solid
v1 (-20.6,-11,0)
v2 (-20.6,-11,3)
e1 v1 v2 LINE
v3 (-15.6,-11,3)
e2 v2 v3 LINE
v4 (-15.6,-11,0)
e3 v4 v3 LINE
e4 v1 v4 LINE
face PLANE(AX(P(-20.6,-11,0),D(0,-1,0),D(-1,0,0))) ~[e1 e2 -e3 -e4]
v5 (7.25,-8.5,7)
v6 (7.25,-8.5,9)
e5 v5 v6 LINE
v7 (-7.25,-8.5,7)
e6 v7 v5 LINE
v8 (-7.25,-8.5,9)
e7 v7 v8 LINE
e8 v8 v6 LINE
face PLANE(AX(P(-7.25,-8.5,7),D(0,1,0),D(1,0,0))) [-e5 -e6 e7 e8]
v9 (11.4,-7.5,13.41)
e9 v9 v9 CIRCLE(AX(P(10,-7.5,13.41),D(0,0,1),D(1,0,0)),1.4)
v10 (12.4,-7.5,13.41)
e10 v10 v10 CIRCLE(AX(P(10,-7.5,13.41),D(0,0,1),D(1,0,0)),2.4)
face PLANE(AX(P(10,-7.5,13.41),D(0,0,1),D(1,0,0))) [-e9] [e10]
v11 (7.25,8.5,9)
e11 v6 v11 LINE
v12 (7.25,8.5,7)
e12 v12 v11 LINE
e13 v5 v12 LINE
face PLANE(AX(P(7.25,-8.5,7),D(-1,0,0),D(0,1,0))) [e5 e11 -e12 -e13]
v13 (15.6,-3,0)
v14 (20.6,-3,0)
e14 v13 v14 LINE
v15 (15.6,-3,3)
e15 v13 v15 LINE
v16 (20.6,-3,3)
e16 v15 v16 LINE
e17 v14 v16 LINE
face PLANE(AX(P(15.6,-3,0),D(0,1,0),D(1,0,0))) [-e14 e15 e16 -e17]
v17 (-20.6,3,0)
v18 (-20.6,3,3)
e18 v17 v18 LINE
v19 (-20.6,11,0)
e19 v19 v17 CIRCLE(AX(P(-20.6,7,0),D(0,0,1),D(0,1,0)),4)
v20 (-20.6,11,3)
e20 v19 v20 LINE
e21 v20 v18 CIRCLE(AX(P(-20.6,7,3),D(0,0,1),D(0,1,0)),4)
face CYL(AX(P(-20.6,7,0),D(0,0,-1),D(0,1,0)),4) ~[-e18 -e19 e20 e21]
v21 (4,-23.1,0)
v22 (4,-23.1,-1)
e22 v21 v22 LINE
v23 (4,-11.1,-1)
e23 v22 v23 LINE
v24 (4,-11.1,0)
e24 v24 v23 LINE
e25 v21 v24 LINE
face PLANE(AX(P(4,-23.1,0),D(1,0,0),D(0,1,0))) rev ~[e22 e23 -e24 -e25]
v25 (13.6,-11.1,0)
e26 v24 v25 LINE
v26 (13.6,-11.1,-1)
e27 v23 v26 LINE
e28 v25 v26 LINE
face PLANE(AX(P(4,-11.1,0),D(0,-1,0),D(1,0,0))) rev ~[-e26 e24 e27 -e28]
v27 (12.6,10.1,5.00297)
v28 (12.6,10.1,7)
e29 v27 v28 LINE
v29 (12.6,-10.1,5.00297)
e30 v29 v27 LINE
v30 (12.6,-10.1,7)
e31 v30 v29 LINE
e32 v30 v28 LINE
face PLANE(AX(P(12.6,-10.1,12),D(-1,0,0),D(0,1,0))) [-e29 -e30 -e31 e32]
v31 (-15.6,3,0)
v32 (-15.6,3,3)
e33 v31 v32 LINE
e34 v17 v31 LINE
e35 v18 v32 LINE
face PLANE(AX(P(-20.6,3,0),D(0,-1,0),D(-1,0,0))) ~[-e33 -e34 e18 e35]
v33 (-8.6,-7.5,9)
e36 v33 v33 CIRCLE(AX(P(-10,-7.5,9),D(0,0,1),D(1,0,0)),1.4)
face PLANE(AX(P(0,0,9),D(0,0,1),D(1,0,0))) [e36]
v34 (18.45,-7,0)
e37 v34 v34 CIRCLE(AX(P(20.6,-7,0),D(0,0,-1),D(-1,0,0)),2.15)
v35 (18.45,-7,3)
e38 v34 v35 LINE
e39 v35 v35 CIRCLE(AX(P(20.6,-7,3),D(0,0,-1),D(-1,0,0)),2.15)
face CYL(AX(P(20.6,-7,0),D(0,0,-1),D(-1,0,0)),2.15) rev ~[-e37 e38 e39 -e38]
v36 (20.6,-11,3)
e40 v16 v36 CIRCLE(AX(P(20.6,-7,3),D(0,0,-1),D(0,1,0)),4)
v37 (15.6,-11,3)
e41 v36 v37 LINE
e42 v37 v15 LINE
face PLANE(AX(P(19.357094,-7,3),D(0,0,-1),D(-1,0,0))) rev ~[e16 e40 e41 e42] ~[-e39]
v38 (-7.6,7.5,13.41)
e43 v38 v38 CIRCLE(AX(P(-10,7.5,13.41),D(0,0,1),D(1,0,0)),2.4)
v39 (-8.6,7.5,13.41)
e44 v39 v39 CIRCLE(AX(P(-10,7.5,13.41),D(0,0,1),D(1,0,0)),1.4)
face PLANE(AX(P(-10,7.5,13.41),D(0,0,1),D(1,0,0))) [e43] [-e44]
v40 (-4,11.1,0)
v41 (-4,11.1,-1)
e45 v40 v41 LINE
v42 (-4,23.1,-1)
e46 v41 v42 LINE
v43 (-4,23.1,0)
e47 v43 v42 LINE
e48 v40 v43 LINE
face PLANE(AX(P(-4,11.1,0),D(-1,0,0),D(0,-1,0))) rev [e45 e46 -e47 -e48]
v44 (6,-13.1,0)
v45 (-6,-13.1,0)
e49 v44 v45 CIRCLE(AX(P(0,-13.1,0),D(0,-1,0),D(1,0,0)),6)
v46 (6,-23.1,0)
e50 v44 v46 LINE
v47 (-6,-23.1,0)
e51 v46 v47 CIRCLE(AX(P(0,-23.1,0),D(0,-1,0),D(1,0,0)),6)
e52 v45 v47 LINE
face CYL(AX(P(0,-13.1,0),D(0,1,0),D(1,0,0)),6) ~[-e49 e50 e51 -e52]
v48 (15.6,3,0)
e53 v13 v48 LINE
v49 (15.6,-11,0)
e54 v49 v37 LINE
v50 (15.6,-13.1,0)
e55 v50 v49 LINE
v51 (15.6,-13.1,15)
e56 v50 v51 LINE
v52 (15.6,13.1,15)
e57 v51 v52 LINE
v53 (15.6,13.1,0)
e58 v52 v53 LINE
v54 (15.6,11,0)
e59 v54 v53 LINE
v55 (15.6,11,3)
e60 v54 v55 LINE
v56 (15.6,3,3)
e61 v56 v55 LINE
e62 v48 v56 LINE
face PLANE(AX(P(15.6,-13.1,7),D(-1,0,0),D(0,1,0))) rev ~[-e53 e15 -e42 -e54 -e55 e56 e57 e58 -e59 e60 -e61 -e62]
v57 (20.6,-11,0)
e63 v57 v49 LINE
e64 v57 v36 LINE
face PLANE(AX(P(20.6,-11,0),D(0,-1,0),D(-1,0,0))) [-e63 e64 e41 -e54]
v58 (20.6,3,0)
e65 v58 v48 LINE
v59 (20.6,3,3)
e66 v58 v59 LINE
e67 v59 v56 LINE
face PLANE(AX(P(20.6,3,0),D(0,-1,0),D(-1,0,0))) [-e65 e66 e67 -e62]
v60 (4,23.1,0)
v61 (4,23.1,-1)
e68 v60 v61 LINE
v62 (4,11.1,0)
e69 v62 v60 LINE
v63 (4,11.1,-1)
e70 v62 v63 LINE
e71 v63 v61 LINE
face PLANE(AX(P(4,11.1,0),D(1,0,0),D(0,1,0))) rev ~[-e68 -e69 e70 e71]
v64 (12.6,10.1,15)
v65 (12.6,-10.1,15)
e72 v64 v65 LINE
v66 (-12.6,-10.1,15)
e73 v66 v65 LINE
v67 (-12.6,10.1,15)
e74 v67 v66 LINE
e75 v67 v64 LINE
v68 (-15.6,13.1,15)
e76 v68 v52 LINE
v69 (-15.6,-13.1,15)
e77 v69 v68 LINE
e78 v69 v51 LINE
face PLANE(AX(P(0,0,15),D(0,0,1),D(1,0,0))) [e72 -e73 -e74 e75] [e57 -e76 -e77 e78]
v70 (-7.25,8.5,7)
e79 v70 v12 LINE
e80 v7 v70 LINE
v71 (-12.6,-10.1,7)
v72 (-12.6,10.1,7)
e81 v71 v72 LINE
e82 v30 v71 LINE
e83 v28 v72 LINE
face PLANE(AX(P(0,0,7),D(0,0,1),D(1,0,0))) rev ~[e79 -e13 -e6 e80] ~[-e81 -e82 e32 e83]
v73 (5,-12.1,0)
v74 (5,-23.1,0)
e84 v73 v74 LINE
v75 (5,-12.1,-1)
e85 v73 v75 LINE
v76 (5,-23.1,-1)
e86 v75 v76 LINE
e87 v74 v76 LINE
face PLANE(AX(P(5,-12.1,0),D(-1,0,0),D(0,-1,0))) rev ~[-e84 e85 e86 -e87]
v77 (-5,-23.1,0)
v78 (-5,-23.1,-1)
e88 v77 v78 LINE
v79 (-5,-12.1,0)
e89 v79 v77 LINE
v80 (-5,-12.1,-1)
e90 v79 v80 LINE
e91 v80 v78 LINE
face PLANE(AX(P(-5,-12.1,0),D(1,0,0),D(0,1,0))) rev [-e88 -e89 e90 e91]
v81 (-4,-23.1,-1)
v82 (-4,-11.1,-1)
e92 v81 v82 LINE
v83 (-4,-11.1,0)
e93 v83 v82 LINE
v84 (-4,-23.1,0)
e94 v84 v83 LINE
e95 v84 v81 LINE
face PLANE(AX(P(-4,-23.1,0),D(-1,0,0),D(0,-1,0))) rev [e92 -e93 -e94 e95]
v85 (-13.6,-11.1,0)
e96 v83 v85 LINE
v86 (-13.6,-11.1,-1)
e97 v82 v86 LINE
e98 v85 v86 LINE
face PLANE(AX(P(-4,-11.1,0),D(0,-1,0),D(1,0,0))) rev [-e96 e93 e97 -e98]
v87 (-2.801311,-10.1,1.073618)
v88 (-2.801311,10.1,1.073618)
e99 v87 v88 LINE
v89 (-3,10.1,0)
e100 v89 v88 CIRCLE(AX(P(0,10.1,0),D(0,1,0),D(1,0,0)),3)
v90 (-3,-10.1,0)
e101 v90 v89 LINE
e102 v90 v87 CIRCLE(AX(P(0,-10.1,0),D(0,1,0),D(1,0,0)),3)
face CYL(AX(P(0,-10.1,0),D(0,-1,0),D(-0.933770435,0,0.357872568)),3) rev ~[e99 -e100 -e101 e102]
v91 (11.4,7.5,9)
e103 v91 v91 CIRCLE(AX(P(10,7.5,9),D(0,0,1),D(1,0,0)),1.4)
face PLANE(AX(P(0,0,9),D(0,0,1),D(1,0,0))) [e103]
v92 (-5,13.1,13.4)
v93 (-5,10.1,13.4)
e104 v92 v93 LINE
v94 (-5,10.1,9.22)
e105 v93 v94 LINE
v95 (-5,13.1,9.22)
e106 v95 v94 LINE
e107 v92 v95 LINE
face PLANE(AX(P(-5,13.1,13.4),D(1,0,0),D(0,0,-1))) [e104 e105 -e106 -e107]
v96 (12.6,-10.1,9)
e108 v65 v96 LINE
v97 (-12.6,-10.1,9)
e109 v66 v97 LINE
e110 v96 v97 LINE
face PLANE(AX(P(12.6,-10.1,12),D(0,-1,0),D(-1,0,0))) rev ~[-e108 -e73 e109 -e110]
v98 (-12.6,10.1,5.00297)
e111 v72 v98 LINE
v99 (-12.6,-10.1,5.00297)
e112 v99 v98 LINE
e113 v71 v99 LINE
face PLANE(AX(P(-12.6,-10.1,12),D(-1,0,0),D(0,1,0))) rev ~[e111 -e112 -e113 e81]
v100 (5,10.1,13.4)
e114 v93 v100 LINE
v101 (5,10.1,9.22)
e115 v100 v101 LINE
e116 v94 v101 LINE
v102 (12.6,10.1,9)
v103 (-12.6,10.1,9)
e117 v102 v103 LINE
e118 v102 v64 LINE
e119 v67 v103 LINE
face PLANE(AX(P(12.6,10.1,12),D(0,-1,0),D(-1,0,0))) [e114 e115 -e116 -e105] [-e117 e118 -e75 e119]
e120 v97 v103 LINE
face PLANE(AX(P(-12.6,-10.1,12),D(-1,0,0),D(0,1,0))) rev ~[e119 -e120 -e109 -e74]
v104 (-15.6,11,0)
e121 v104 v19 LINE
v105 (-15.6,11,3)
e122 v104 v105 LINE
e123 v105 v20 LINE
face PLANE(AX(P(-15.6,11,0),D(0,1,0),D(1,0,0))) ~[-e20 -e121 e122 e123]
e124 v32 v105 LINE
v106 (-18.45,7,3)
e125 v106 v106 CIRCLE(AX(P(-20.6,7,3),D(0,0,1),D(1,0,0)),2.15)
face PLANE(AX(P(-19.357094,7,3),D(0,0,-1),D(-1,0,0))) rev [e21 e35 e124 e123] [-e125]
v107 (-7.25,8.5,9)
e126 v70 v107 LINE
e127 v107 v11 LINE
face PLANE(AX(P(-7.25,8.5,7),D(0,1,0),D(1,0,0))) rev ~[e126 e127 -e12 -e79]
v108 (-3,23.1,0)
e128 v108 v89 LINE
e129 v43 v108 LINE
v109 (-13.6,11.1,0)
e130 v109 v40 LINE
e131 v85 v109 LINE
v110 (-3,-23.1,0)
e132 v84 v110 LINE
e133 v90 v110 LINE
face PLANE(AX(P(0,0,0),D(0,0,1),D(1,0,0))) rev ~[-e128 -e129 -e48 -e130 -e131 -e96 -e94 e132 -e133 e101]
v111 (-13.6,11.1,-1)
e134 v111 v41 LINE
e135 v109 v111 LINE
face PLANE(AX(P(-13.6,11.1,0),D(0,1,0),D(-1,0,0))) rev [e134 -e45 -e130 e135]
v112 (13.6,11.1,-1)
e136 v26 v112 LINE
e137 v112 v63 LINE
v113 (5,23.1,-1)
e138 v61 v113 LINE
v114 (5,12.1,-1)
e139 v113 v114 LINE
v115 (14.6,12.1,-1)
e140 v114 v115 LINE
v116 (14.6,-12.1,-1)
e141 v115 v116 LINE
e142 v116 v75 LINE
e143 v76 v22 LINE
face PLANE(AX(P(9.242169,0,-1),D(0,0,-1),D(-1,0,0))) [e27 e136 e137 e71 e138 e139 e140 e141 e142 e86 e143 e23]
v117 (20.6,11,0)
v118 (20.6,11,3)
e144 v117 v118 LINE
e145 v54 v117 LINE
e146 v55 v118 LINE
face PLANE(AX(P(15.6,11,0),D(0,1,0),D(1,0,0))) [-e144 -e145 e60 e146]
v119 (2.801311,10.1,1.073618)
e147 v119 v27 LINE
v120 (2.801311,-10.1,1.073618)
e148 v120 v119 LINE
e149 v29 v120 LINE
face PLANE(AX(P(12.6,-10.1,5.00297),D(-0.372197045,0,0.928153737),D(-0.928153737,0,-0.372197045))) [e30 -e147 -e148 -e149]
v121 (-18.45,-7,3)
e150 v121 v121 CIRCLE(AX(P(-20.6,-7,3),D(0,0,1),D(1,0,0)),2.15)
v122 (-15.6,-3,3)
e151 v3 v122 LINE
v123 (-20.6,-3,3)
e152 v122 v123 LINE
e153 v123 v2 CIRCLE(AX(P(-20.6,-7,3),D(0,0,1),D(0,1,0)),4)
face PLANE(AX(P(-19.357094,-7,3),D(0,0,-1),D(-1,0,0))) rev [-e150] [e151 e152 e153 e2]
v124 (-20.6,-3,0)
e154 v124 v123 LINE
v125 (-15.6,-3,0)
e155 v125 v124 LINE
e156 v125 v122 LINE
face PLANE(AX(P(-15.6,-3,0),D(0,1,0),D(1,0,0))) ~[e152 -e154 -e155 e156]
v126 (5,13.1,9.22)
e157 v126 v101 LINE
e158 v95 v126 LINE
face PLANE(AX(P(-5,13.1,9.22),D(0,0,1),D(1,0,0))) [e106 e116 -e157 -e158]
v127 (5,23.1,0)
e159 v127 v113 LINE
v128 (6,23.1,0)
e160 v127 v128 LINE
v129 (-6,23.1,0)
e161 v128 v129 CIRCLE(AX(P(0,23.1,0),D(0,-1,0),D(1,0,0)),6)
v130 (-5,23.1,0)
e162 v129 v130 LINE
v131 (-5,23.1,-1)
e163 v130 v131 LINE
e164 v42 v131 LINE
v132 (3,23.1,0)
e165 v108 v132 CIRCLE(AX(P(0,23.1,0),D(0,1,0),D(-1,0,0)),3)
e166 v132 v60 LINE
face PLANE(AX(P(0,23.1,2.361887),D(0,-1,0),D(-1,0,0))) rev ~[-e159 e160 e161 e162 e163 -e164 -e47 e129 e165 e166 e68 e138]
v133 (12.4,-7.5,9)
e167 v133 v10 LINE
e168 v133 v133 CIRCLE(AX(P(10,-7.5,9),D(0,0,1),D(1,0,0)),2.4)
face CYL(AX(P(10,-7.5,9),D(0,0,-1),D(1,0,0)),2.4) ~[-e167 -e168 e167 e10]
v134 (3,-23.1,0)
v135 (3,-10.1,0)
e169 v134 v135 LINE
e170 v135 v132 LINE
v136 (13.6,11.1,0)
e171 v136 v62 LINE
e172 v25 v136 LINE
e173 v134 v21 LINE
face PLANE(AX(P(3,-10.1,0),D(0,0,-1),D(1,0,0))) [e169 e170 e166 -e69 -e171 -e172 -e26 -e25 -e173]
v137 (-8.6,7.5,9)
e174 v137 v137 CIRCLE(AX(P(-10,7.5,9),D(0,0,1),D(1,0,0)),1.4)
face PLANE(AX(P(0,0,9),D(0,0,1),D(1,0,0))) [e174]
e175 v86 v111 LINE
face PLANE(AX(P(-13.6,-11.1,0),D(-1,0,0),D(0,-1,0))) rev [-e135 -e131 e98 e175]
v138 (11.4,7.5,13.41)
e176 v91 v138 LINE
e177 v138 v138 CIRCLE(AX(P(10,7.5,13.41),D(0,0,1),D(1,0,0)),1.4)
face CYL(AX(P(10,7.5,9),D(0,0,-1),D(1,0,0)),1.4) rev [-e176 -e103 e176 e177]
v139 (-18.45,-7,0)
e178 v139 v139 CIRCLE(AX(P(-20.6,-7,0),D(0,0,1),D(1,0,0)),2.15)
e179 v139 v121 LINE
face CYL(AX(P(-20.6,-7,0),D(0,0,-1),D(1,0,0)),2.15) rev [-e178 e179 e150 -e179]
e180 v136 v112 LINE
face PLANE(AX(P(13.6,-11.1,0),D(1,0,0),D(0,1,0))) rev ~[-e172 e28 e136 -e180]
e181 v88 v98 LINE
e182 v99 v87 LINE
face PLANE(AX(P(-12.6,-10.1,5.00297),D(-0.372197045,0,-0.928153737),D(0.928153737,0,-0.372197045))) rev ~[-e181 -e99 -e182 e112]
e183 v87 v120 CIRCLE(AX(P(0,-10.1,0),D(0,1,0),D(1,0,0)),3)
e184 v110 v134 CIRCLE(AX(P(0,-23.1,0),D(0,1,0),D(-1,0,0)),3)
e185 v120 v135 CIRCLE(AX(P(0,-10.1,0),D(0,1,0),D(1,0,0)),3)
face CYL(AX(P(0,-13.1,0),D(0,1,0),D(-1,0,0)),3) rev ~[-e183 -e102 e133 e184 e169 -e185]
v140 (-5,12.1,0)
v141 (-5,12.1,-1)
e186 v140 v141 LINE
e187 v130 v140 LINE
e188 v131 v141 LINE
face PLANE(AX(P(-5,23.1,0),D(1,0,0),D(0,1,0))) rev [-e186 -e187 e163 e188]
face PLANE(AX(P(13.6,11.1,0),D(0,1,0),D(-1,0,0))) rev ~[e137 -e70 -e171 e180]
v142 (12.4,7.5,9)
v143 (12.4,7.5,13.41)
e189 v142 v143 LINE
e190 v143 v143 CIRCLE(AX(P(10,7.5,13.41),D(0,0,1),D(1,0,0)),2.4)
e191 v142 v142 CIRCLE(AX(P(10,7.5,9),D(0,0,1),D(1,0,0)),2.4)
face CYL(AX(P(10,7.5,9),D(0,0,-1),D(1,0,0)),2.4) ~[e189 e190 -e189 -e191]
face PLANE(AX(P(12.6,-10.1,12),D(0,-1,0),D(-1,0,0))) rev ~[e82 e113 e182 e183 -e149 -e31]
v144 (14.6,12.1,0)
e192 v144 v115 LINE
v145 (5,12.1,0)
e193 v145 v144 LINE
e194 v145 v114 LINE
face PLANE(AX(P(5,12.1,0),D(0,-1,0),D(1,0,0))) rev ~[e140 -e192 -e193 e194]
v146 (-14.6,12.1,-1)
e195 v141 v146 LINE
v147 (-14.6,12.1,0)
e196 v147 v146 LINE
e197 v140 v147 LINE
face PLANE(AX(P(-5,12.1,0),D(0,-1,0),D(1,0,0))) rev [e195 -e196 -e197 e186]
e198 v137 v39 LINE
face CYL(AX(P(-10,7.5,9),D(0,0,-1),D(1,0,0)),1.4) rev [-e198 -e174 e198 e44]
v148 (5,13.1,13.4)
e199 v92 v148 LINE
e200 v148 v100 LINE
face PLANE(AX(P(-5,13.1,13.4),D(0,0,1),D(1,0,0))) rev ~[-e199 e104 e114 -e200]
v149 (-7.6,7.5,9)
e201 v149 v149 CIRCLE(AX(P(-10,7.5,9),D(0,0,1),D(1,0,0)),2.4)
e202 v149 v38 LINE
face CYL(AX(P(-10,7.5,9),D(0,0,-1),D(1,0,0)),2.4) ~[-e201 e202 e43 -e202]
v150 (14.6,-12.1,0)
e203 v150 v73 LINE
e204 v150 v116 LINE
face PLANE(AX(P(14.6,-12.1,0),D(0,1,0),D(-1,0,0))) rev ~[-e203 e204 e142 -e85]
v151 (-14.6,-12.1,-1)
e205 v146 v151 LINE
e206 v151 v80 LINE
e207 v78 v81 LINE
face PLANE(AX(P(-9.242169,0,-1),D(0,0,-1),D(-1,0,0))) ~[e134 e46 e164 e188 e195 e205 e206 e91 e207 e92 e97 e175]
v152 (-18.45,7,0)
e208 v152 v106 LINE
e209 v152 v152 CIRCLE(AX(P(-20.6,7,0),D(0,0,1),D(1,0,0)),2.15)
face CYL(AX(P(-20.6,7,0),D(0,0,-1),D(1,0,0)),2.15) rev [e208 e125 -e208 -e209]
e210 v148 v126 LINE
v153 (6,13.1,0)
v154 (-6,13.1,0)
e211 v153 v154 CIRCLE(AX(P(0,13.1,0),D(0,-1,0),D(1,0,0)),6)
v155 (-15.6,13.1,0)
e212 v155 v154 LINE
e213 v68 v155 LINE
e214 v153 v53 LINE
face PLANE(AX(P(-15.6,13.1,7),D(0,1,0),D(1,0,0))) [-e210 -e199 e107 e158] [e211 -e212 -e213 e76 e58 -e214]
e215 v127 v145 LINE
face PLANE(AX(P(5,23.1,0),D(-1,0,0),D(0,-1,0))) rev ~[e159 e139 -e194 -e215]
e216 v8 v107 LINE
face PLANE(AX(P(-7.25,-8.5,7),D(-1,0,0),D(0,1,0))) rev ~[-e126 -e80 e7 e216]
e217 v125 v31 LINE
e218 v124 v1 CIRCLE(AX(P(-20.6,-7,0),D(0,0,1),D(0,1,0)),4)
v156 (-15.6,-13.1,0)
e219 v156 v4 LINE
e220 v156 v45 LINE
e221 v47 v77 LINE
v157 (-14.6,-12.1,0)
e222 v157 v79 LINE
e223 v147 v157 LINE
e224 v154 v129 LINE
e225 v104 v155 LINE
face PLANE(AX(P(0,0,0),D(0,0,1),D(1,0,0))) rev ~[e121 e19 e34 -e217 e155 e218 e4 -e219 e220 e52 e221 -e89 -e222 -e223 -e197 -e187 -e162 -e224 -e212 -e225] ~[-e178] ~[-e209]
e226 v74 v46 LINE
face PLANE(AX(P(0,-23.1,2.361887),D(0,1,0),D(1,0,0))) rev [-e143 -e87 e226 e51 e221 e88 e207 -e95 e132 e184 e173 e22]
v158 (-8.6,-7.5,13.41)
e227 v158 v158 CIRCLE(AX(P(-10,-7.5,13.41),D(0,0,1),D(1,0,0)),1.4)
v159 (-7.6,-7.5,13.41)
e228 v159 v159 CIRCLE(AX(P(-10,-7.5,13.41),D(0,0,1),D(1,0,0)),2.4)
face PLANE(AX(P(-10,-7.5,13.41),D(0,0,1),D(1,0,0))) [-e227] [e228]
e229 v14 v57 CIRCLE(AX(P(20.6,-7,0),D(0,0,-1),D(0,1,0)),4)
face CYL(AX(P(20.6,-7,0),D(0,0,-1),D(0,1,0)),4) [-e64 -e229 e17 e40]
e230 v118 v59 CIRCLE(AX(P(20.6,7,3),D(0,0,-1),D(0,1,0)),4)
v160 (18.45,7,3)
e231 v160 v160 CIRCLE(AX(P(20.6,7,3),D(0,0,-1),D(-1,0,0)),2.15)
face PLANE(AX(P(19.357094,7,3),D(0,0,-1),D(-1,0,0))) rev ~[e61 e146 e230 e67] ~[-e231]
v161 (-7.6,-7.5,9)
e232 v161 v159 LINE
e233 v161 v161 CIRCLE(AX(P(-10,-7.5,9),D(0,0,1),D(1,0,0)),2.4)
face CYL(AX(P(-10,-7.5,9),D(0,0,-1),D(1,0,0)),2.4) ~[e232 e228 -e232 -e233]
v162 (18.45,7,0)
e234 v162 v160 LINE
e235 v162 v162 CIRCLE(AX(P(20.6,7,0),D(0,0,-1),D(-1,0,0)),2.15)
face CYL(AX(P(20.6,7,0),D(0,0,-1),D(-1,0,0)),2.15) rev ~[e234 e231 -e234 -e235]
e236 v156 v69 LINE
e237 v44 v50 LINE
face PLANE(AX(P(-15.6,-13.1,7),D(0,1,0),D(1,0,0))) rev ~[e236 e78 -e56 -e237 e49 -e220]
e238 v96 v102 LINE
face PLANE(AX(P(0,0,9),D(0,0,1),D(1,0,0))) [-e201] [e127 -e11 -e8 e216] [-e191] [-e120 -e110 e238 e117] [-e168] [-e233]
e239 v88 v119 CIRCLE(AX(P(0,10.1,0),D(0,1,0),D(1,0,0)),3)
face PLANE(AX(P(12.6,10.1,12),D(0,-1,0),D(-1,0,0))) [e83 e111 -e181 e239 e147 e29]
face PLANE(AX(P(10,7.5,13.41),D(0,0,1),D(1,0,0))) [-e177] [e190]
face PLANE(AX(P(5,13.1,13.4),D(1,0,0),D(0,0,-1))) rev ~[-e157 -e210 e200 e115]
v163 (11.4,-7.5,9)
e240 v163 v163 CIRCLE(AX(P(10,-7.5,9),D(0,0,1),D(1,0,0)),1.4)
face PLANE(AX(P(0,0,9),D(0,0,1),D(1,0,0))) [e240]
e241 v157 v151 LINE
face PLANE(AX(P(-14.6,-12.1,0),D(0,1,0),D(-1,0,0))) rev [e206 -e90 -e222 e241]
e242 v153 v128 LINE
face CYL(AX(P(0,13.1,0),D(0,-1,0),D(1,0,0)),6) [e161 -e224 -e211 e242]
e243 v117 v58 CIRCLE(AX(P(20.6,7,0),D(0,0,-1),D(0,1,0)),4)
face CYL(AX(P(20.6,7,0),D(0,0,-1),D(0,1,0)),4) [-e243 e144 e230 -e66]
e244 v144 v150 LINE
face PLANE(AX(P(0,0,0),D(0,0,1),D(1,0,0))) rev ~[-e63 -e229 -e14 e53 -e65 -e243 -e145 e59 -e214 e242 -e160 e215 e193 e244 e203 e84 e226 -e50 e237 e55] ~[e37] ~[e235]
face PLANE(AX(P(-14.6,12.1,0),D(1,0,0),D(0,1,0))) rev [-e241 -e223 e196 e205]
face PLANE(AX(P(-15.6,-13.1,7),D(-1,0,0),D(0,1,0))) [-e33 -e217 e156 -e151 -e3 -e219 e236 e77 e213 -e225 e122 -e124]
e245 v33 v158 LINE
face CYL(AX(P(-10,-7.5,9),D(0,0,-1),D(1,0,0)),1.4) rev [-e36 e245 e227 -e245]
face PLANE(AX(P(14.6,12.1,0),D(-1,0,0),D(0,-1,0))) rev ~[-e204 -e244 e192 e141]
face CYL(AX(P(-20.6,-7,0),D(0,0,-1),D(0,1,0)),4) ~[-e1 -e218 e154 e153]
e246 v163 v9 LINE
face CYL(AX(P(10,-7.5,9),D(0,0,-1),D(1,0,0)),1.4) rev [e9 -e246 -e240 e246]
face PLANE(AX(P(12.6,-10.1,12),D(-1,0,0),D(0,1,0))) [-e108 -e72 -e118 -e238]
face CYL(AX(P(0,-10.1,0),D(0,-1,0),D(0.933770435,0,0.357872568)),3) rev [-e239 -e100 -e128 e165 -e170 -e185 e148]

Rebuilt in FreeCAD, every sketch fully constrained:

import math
import FreeCAD as App
import Part
import Sketcher


def faces_at(feature, points):
    """Names of the faces that lie closest to the given points."""
    faces = feature.Shape.Faces
    near = lambda p: min(range(len(faces)), key=lambda i: faces[i].distToShape(Part.Vertex(*p))[0])
    return sorted({f"Face{near(p) + 1}" for p in points})

doc = App.newDocument("Part")
params = doc.addObject("Spreadsheet::Sheet", "Params")
for row, (alias, value) in enumerate([
    ("sketch1_width", "31.2 mm"),
    ("sketch1_height", "26.2 mm"),
    ("pad1_length", "15 mm"),
    ("thickness_wall", "3 mm"),
    ("sketch2_radius", "6 mm"),
    ("sketch2_radius2", "3 mm"),
    ("pad2_length", "10 mm"),
    ("sketch3_radius", "3 mm"),
    ("sketch4_radius", "4 mm"),
    ("sketch4_diameter", "4.3 mm"),
    ("sketch4_width", "5 mm"),
    ("pad3_length", "3 mm"),
    ("sketch5_width", "1 mm"),
    ("sketch5_height", "12 mm"),
    ("sketch5_height2", "11 mm"),
    ("sketch5_width2", "9.6 mm"),
    ("sketch5_height3", "22.2 mm"),
    ("pad4_length", "1 mm"),
    ("sketch6_width", "25.2 mm"),
    ("sketch6_height", "20.2 mm"),
    ("sketch7_radius", "3 mm"),
    ("sketch7_width", "9.6 mm"),
    ("sketch8_radius", "3 mm"),
    ("sketch8_width", "9.6 mm"),
    ("sketch9_height", "17 mm"),
    ("sketch9_width", "31.2 mm"),
    ("sketch9_width2", "14.5 mm"),
    ("sketch9_height2", "26.2 mm"),
    ("pad7_length", "2 mm"),
    ("sketch10_diameter", "4.8 mm"),
    ("sketch10_diameter2", "2.8 mm"),
    ("pad8_length", "4.41 mm"),
    ("sketch11_width", "10 mm"),
    ("sketch11_height", "4.18 mm"),
], start=1):
    params.set(f"A{row}", alias)
    params.set(f"B{row}", "=" + value)
    params.setAlias(f"B{row}", alias)

body = doc.addObject("PartDesign::Body", "Body")

sketch1 = body.newObject("Sketcher::SketchObject", "Sketch")
sketch1.AttachmentSupport = (doc.getObject("XY_Plane"), [""])
sketch1.MapMode = "FlatFace"
sketch1.addGeometry([
    Part.LineSegment(App.Vector(-15.6, 13.1, 0), App.Vector(-15.6, -13.1, 0)),
    Part.LineSegment(App.Vector(-15.6, -13.1, 0), App.Vector(15.6, -13.1, 0)),
    Part.LineSegment(App.Vector(15.6, -13.1, 0), App.Vector(15.6, 13.1, 0)),
    Part.LineSegment(App.Vector(15.6, 13.1, 0), App.Vector(-15.6, 13.1, 0)),
], False)
sketch1.addConstraint([
    Sketcher.Constraint("Coincident", 0, 2, 1, 1),
    Sketcher.Constraint("Coincident", 1, 2, 2, 1),
    Sketcher.Constraint("Coincident", 2, 2, 3, 1),
    Sketcher.Constraint("Coincident", 3, 2, 0, 1),
    Sketcher.Constraint("Vertical", 0),
    Sketcher.Constraint("Horizontal", 1),
    Sketcher.Constraint("Vertical", 2),
    Sketcher.Constraint("Horizontal", 3),
    Sketcher.Constraint("Symmetric", 0, 2, 2, 2, -1, 1),
    Sketcher.Constraint("DistanceX", 1, 1, 1, 2, 31.2),
    Sketcher.Constraint("DistanceY", 0, 2, 0, 1, 26.2),
])
sketch1.setExpression("Constraints[9]", "Params.sketch1_width")
sketch1.setExpression("Constraints[10]", "Params.sketch1_height")
pad1 = body.newObject("PartDesign::Pad", "Pad")
pad1.Profile = sketch1
pad1.setExpression("Length", "Params.pad1_length")
doc.recompute()

thickness = body.newObject("PartDesign::Thickness", "Thickness")
thickness.Base = (pad1, faces_at(pad1, [(0, 0, 0)]))
thickness.setExpression("Value", "Params.thickness_wall")
thickness.Reversed = True
thickness.Join = "Intersection"

sketch2 = body.newObject("Sketcher::SketchObject", "Sketch001")
sketch2.AttachmentSupport = (doc.getObject("XZ_Plane"), [""])
sketch2.MapMode = "FlatFace"
sketch2.AttachmentOffset = App.Placement(App.Vector(0, 0, -13.1), App.Rotation())
sketch2.addGeometry([
    Part.LineSegment(App.Vector(-3, 0, 0), App.Vector(-6, 0, 0)),
    Part.ArcOfCircle(Part.Circle(App.Vector(0, 0, 0), App.Vector(0, 0, 1), 6), math.radians(0), math.radians(180)),
    Part.LineSegment(App.Vector(6, 0, 0), App.Vector(3, 0, 0)),
    Part.ArcOfCircle(Part.Circle(App.Vector(0, 0, 0), App.Vector(0, 0, 1), 3), math.radians(0), math.radians(180)),
], False)
sketch2.addConstraint([
    Sketcher.Constraint("Coincident", 0, 2, 1, 2),
    Sketcher.Constraint("Coincident", 1, 1, 2, 1),
    Sketcher.Constraint("Coincident", 2, 2, 3, 1),
    Sketcher.Constraint("Coincident", 3, 2, 0, 1),
    Sketcher.Constraint("Horizontal", 0),
    Sketcher.Constraint("Horizontal", 2),
    Sketcher.Constraint("Coincident", 1, 3, -1, 1),
    Sketcher.Constraint("Coincident", 3, 3, -1, 1),
    Sketcher.Constraint("PointOnObject", 0, 2, -1),
    Sketcher.Constraint("PointOnObject", 1, 1, -1),
    Sketcher.Constraint("Radius", 1, 6.0),
    Sketcher.Constraint("Radius", 3, 3.0),
])
sketch2.setExpression("Constraints[10]", "Params.sketch2_radius")
sketch2.setExpression("Constraints[11]", "Params.sketch2_radius2")
pad2 = body.newObject("PartDesign::Pad", "Pad001")
pad2.Profile = sketch2
pad2.setExpression("Length", "Params.pad2_length")
pad2.Reversed = True
doc.recompute()

mirrored = body.newObject("PartDesign::Mirrored", "Mirrored")
mirrored.Originals = [pad2]
mirrored.MirrorPlane = (doc.getObject("XZ_Plane"), [""])
body.Tip = mirrored

sketch3 = body.newObject("Sketcher::SketchObject", "Sketch002")
sketch3.AttachmentSupport = (doc.getObject("XZ_Plane"), [""])
sketch3.MapMode = "FlatFace"
sketch3.AttachmentOffset = App.Placement(App.Vector(0, 0, -13.1), App.Rotation())
sketch3.addGeometry([
    Part.LineSegment(App.Vector(3, 0, 0), App.Vector(-3, 0, 0)),
    Part.ArcOfCircle(Part.Circle(App.Vector(0, 0, 0), App.Vector(0, 0, 1), 3), math.radians(0), math.radians(180)),
], False)
sketch3.addConstraint([
    Sketcher.Constraint("Coincident", 0, 1, 1, 1),
    Sketcher.Constraint("Coincident", 1, 2, 0, 2),
    Sketcher.Constraint("Horizontal", 0),
    Sketcher.Constraint("Coincident", 1, 3, -1, 1),
    Sketcher.Constraint("PointOnObject", 0, 1, -1),
    Sketcher.Constraint("Radius", 1, 3.0),
])
sketch3.setExpression("Constraints[5]", "Params.sketch3_radius")
pocket1 = body.newObject("PartDesign::Pocket", "Pocket")
pocket1.Profile = sketch3
pocket1.Type = "ThroughAll"
pocket1.Reversed = True

sketch4 = body.newObject("Sketcher::SketchObject", "Sketch003")
sketch4.AttachmentSupport = (doc.getObject("XY_Plane"), [""])
sketch4.MapMode = "FlatFace"
sketch4.addGeometry([
    Part.LineSegment(App.Vector(15.6, 3, 0), App.Vector(15.6, 11, 0)),
    Part.LineSegment(App.Vector(15.6, 11, 0), App.Vector(20.6, 11, 0)),
    Part.ArcOfCircle(Part.Circle(App.Vector(20.6, 7, 0), App.Vector(0, 0, 1), 4), math.radians(-90), math.radians(90)),
    Part.LineSegment(App.Vector(20.6, 3, 0), App.Vector(15.6, 3, 0)),
    Part.Circle(App.Vector(20.6, 7, 0), App.Vector(0, 0, 1), 2.15),
    Part.LineSegment(App.Vector(15.6, -11, 0), App.Vector(15.6, -3, 0)),
    Part.LineSegment(App.Vector(15.6, -3, 0), App.Vector(20.6, -3, 0)),
    Part.ArcOfCircle(Part.Circle(App.Vector(20.6, -7, 0), App.Vector(0, 0, 1), 4), math.radians(-90), math.radians(90)),
    Part.LineSegment(App.Vector(20.6, -11, 0), App.Vector(15.6, -11, 0)),
    Part.Circle(App.Vector(20.6, -7, 0), App.Vector(0, 0, 1), 2.15),
], False)
sketch4.addConstraint([
    Sketcher.Constraint("Coincident", 0, 2, 1, 1),
    Sketcher.Constraint("Tangent", 1, 2, 2, 2),
    Sketcher.Constraint("Tangent", 2, 1, 3, 1),
    Sketcher.Constraint("Coincident", 3, 2, 0, 1),
    Sketcher.Constraint("Coincident", 5, 2, 6, 1),
    Sketcher.Constraint("Tangent", 6, 2, 7, 2),
    Sketcher.Constraint("Tangent", 7, 1, 8, 1),
    Sketcher.Constraint("Coincident", 8, 2, 5, 1),
    Sketcher.Constraint("Vertical", 0),
    Sketcher.Constraint("Horizontal", 1),
    Sketcher.Constraint("Horizontal", 3),
    Sketcher.Constraint("Vertical", 5),
    Sketcher.Constraint("Horizontal", 6),
    Sketcher.Constraint("Horizontal", 8),
    Sketcher.Constraint("Coincident", 4, 3, 2, 3),
    Sketcher.Constraint("Coincident", 9, 3, 7, 3),
    Sketcher.Constraint("Equal", 2, 7),
    Sketcher.Constraint("Equal", 4, 9),
    Sketcher.Constraint("Symmetric", 2, 3, 7, 3, -1),
    Sketcher.Constraint("Vertical", 3, 2, 5, 2),
    Sketcher.Constraint("Radius", 2, 4.0),
    Sketcher.Constraint("Diameter", 4, 4.3),
    Sketcher.Constraint("DistanceX", 1, 1, 1, 2, 5.0),
    Sketcher.Constraint("DistanceY", -1, 1, 2, 3, 7.0),
    Sketcher.Constraint("DistanceX", -1, 1, 2, 3, 20.6),
])
sketch4.setExpression("Constraints[20]", "Params.sketch4_radius")
sketch4.setExpression("Constraints[21]", "Params.sketch4_diameter")
sketch4.setExpression("Constraints[22]", "Params.sketch4_width")
pad3 = body.newObject("PartDesign::Pad", "Pad002")
pad3.Profile = sketch4
pad3.setExpression("Length", "Params.pad3_length")
doc.recompute()

mirrored2 = body.newObject("PartDesign::Mirrored", "Mirrored001")
mirrored2.Originals = [pad3]
mirrored2.MirrorPlane = (doc.getObject("YZ_Plane"), [""])
body.Tip = mirrored2

sketch5 = body.newObject("Sketcher::SketchObject", "Sketch004")
sketch5.AttachmentSupport = (doc.getObject("XY_Plane"), [""])
sketch5.MapMode = "FlatFace"
sketch5.addGeometry([
    Part.LineSegment(App.Vector(4, -23.1, 0), App.Vector(4, -11.1, 0)),
    Part.LineSegment(App.Vector(4, -11.1, 0), App.Vector(13.6, -11.1, 0)),
    Part.LineSegment(App.Vector(13.6, -11.1, 0), App.Vector(13.6, 11.1, 0)),
    Part.LineSegment(App.Vector(13.6, 11.1, 0), App.Vector(4, 11.1, 0)),
    Part.LineSegment(App.Vector(4, 11.1, 0), App.Vector(4, 23.1, 0)),
    Part.LineSegment(App.Vector(4, 23.1, 0), App.Vector(5, 23.1, 0)),
    Part.LineSegment(App.Vector(5, 23.1, 0), App.Vector(5, 12.1, 0)),
    Part.LineSegment(App.Vector(5, 12.1, 0), App.Vector(14.6, 12.1, 0)),
    Part.LineSegment(App.Vector(14.6, 12.1, 0), App.Vector(14.6, -12.1, 0)),
    Part.LineSegment(App.Vector(14.6, -12.1, 0), App.Vector(5, -12.1, 0)),
    Part.LineSegment(App.Vector(5, -12.1, 0), App.Vector(5, -23.1, 0)),
    Part.LineSegment(App.Vector(5, -23.1, 0), App.Vector(4, -23.1, 0)),
], False)
sketch5.addConstraint([
    Sketcher.Constraint("Coincident", 0, 2, 1, 1),
    Sketcher.Constraint("Coincident", 1, 2, 2, 1),
    Sketcher.Constraint("Coincident", 2, 2, 3, 1),
    Sketcher.Constraint("Coincident", 3, 2, 4, 1),
    Sketcher.Constraint("Coincident", 4, 2, 5, 1),
    Sketcher.Constraint("Coincident", 5, 2, 6, 1),
    Sketcher.Constraint("Coincident", 6, 2, 7, 1),
    Sketcher.Constraint("Coincident", 7, 2, 8, 1),
    Sketcher.Constraint("Coincident", 8, 2, 9, 1),
    Sketcher.Constraint("Coincident", 9, 2, 10, 1),
    Sketcher.Constraint("Coincident", 10, 2, 11, 1),
    Sketcher.Constraint("Coincident", 11, 2, 0, 1),
    Sketcher.Constraint("Vertical", 0),
    Sketcher.Constraint("Horizontal", 1),
    Sketcher.Constraint("Vertical", 2),
    Sketcher.Constraint("Horizontal", 3),
    Sketcher.Constraint("Vertical", 4),
    Sketcher.Constraint("Horizontal", 5),
    Sketcher.Constraint("Vertical", 6),
    Sketcher.Constraint("Horizontal", 7),
    Sketcher.Constraint("Vertical", 8),
    Sketcher.Constraint("Horizontal", 9),
    Sketcher.Constraint("Vertical", 10),
    Sketcher.Constraint("Horizontal", 11),
    Sketcher.Constraint("Symmetric", 0, 2, 3, 2, -1),
    Sketcher.Constraint("Symmetric", 6, 2, 9, 2, -1),
    Sketcher.Constraint("Equal", 3, 7),
    Sketcher.Constraint("Equal", 0, 4),
    Sketcher.Constraint("DistanceX", 5, 1, 5, 2, 1.0),
    Sketcher.Constraint("DistanceY", 0, 1, 0, 2, 12.0),
    Sketcher.Constraint("DistanceY", 6, 2, 6, 1, 11.0),
    Sketcher.Constraint("DistanceX", 1, 1, 1, 2, 9.6),
    Sketcher.Constraint("DistanceY", 2, 1, 2, 2, 22.2),
    Sketcher.Constraint("DistanceX", -1, 1, 0, 2, 4.0),
])
sketch5.setExpression("Constraints[28]", "Params.sketch5_width")
sketch5.setExpression("Constraints[29]", "Params.sketch5_height")
sketch5.setExpression("Constraints[30]", "Params.sketch5_height2")
sketch5.setExpression("Constraints[31]", "Params.sketch5_width2")
sketch5.setExpression("Constraints[32]", "Params.sketch5_height3")
pad4 = body.newObject("PartDesign::Pad", "Pad003")
pad4.Profile = sketch5
pad4.setExpression("Length", "Params.pad4_length")
pad4.Reversed = True
doc.recompute()

mirrored3 = body.newObject("PartDesign::Mirrored", "Mirrored002")
mirrored3.Originals = [pad4]
mirrored3.MirrorPlane = (doc.getObject("YZ_Plane"), [""])
body.Tip = mirrored3

sketch6 = body.newObject("Sketcher::SketchObject", "Sketch005")
sketch6.AttachmentSupport = (doc.getObject("XY_Plane"), [""])
sketch6.MapMode = "FlatFace"
sketch6.AttachmentOffset = App.Placement(App.Vector(0, 0, 12), App.Rotation())
sketch6.addGeometry([
    Part.LineSegment(App.Vector(12.6, 10.1, 0), App.Vector(12.6, -10.1, 0)),
    Part.LineSegment(App.Vector(12.6, -10.1, 0), App.Vector(-12.6, -10.1, 0)),
    Part.LineSegment(App.Vector(-12.6, -10.1, 0), App.Vector(-12.6, 10.1, 0)),
    Part.LineSegment(App.Vector(-12.6, 10.1, 0), App.Vector(12.6, 10.1, 0)),
], False)
sketch6.addConstraint([
    Sketcher.Constraint("Coincident", 0, 2, 1, 1),
    Sketcher.Constraint("Coincident", 1, 2, 2, 1),
    Sketcher.Constraint("Coincident", 2, 2, 3, 1),
    Sketcher.Constraint("Coincident", 3, 2, 0, 1),
    Sketcher.Constraint("Vertical", 0),
    Sketcher.Constraint("Horizontal", 1),
    Sketcher.Constraint("Vertical", 2),
    Sketcher.Constraint("Horizontal", 3),
    Sketcher.Constraint("Symmetric", 0, 2, 2, 2, -1, 1),
    Sketcher.Constraint("DistanceX", 1, 2, 1, 1, 25.2),
    Sketcher.Constraint("DistanceY", 0, 2, 0, 1, 20.2),
])
sketch6.setExpression("Constraints[9]", "Params.sketch6_width")
sketch6.setExpression("Constraints[10]", "Params.sketch6_height")
pocket2 = body.newObject("PartDesign::Pocket", "Pocket001")
pocket2.Profile = sketch6
pocket2.Type = "ThroughAll"
pocket2.Reversed = True

sketch7 = body.newObject("Sketcher::SketchObject", "Sketch006")
sketch7.AttachmentSupport = (doc.getObject("XZ_Plane"), [""])
sketch7.MapMode = "FlatFace"
sketch7.AttachmentOffset = App.Placement(App.Vector(0, 0, 10.1), App.Rotation())
sketch7.addGeometry([
    Part.LineSegment(App.Vector(12.6, 0, 0), App.Vector(3, 0, 0)),
    Part.ArcOfCircle(Part.Circle(App.Vector(0, 0, 0), App.Vector(0, 0, 1), 3), math.radians(0), math.radians(20.969601)),
    Part.LineSegment(App.Vector(2.801311, 1.073618, 0), App.Vector(12.6, 5.00297, 0)),
    Part.LineSegment(App.Vector(12.6, 5.00297, 0), App.Vector(12.6, 0, 0)),
], False)
sketch7.addConstraint([
    Sketcher.Constraint("Coincident", 0, 2, 1, 1),
    Sketcher.Constraint("Coincident", 1, 2, 2, 1),
    Sketcher.Constraint("Coincident", 2, 2, 3, 1),
    Sketcher.Constraint("Coincident", 3, 2, 0, 1),
    Sketcher.Constraint("Horizontal", 0),
    Sketcher.Constraint("Vertical", 3),
    Sketcher.Constraint("Coincident", 1, 3, -1, 1),
    Sketcher.Constraint("PointOnObject", 0, 2, -1),
    Sketcher.Constraint("Radius", 1, 3.0),
    Sketcher.Constraint("DistanceX", 0, 2, 0, 1, 9.6),
    Sketcher.Constraint("DistanceY", 3, 2, 3, 1, 5.00297),
    Sketcher.Constraint("DistanceX", -1, 1, 1, 2, 2.801311),
])
sketch7.setExpression("Constraints[8]", "Params.sketch7_radius")
sketch7.setExpression("Constraints[9]", "Params.sketch7_width")
pad5 = body.newObject("PartDesign::Pad", "Pad004")
pad5.Profile = sketch7
pad5.Type = "UpToFirst"
pad5.Reversed = True

sketch8 = body.newObject("Sketcher::SketchObject", "Sketch007")
sketch8.AttachmentSupport = (doc.getObject("XZ_Plane"), [""])
sketch8.MapMode = "FlatFace"
sketch8.AttachmentOffset = App.Placement(App.Vector(0, 0, 10.1), App.Rotation())
sketch8.addGeometry([
    Part.LineSegment(App.Vector(-12.6, 5.00297, 0), App.Vector(-2.801311, 1.073618, 0)),
    Part.ArcOfCircle(Part.Circle(App.Vector(0, 0, 0), App.Vector(0, 0, 1), 3), math.radians(159.030399), math.radians(180)),
    Part.LineSegment(App.Vector(-3, 0, 0), App.Vector(-12.6, 0, 0)),
    Part.LineSegment(App.Vector(-12.6, 0, 0), App.Vector(-12.6, 5.00297, 0)),
], False)
sketch8.addConstraint([
    Sketcher.Constraint("Coincident", 0, 2, 1, 1),
    Sketcher.Constraint("Coincident", 1, 2, 2, 1),
    Sketcher.Constraint("Coincident", 2, 2, 3, 1),
    Sketcher.Constraint("Coincident", 3, 2, 0, 1),
    Sketcher.Constraint("Horizontal", 2),
    Sketcher.Constraint("Vertical", 3),
    Sketcher.Constraint("Coincident", 1, 3, -1, 1),
    Sketcher.Constraint("PointOnObject", 1, 2, -1),
    Sketcher.Constraint("Radius", 1, 3.0),
    Sketcher.Constraint("DistanceX", 2, 2, 2, 1, 9.6),
    Sketcher.Constraint("DistanceY", 3, 1, 3, 2, 5.00297),
    Sketcher.Constraint("DistanceX", 0, 2, -1, 1, 2.801311),
])
sketch8.setExpression("Constraints[8]", "Params.sketch8_radius")
sketch8.setExpression("Constraints[9]", "Params.sketch8_width")
pad6 = body.newObject("PartDesign::Pad", "Pad005")
pad6.Profile = sketch8
pad6.Type = "UpToFirst"
pad6.Reversed = True

sketch9 = body.newObject("Sketcher::SketchObject", "Sketch008")
sketch9.AttachmentSupport = (doc.getObject("XY_Plane"), [""])
sketch9.MapMode = "FlatFace"
sketch9.AttachmentOffset = App.Placement(App.Vector(0, 0, 7), App.Rotation())
sketch9.addGeometry([
    Part.LineSegment(App.Vector(-15.6, 13.1, 0), App.Vector(-15.6, -13.1, 0)),
    Part.LineSegment(App.Vector(-15.6, -13.1, 0), App.Vector(15.6, -13.1, 0)),
    Part.LineSegment(App.Vector(15.6, -13.1, 0), App.Vector(15.6, 13.1, 0)),
    Part.LineSegment(App.Vector(15.6, 13.1, 0), App.Vector(-15.6, 13.1, 0)),
    Part.LineSegment(App.Vector(7.25, -8.5, 0), App.Vector(-7.25, -8.5, 0)),
    Part.LineSegment(App.Vector(-7.25, -8.5, 0), App.Vector(-7.25, 8.5, 0)),
    Part.LineSegment(App.Vector(-7.25, 8.5, 0), App.Vector(7.25, 8.5, 0)),
    Part.LineSegment(App.Vector(7.25, 8.5, 0), App.Vector(7.25, -8.5, 0)),
], False)
sketch9.addConstraint([
    Sketcher.Constraint("Coincident", 0, 2, 1, 1),
    Sketcher.Constraint("Coincident", 1, 2, 2, 1),
    Sketcher.Constraint("Coincident", 2, 2, 3, 1),
    Sketcher.Constraint("Coincident", 3, 2, 0, 1),
    Sketcher.Constraint("Coincident", 4, 2, 5, 1),
    Sketcher.Constraint("Coincident", 5, 2, 6, 1),
    Sketcher.Constraint("Coincident", 6, 2, 7, 1),
    Sketcher.Constraint("Coincident", 7, 2, 4, 1),
    Sketcher.Constraint("Vertical", 0),
    Sketcher.Constraint("Horizontal", 1),
    Sketcher.Constraint("Vertical", 2),
    Sketcher.Constraint("Horizontal", 3),
    Sketcher.Constraint("Horizontal", 4),
    Sketcher.Constraint("Vertical", 5),
    Sketcher.Constraint("Horizontal", 6),
    Sketcher.Constraint("Vertical", 7),
    Sketcher.Constraint("Symmetric", 0, 2, 2, 2, -1, 1),
    Sketcher.Constraint("Symmetric", 4, 2, 6, 2, -1, 1),
    Sketcher.Constraint("DistanceY", 5, 1, 5, 2, 17.0),
    Sketcher.Constraint("DistanceX", 1, 1, 1, 2, 31.2),
    Sketcher.Constraint("DistanceX", 4, 2, 4, 1, 14.5),
    Sketcher.Constraint("DistanceY", 0, 2, 0, 1, 26.2),
])
sketch9.setExpression("Constraints[18]", "Params.sketch9_height")
sketch9.setExpression("Constraints[19]", "Params.sketch9_width")
sketch9.setExpression("Constraints[20]", "Params.sketch9_width2")
sketch9.setExpression("Constraints[21]", "Params.sketch9_height2")
pad7 = body.newObject("PartDesign::Pad", "Pad006")
pad7.Profile = sketch9
pad7.setExpression("Length", "Params.pad7_length")

sketch10 = body.newObject("Sketcher::SketchObject", "Sketch009")
sketch10.AttachmentSupport = (doc.getObject("XY_Plane"), [""])
sketch10.MapMode = "FlatFace"
sketch10.AttachmentOffset = App.Placement(App.Vector(0, 0, 9), App.Rotation())
sketch10.addGeometry([
    Part.Circle(App.Vector(-10, 7.5, 0), App.Vector(0, 0, 1), 2.4),
    Part.Circle(App.Vector(-10, 7.5, 0), App.Vector(0, 0, 1), 1.4),
    Part.Circle(App.Vector(10, 7.5, 0), App.Vector(0, 0, 1), 2.4),
    Part.Circle(App.Vector(10, 7.5, 0), App.Vector(0, 0, 1), 1.4),
    Part.Circle(App.Vector(-10, -7.5, 0), App.Vector(0, 0, 1), 2.4),
    Part.Circle(App.Vector(-10, -7.5, 0), App.Vector(0, 0, 1), 1.4),
    Part.Circle(App.Vector(10, -7.5, 0), App.Vector(0, 0, 1), 2.4),
    Part.Circle(App.Vector(10, -7.5, 0), App.Vector(0, 0, 1), 1.4),
], False)
sketch10.addConstraint([
    Sketcher.Constraint("Coincident", 1, 3, 0, 3),
    Sketcher.Constraint("Coincident", 3, 3, 2, 3),
    Sketcher.Constraint("Coincident", 5, 3, 4, 3),
    Sketcher.Constraint("Coincident", 7, 3, 6, 3),
    Sketcher.Constraint("Equal", 0, 2),
    Sketcher.Constraint("Equal", 1, 3),
    Sketcher.Constraint("Equal", 2, 4),
    Sketcher.Constraint("Equal", 3, 5),
    Sketcher.Constraint("Equal", 4, 6),
    Sketcher.Constraint("Equal", 5, 7),
    Sketcher.Constraint("Symmetric", 2, 3, 4, 3, -1, 1),
    Sketcher.Constraint("Symmetric", 0, 3, 6, 3, -1, 1),
    Sketcher.Constraint("Symmetric", 0, 3, 2, 3, -2),
    Sketcher.Constraint("Diameter", 0, 4.8),
    Sketcher.Constraint("Diameter", 1, 2.8),
    Sketcher.Constraint("DistanceX", 0, 3, -1, 1, 10.0),
    Sketcher.Constraint("DistanceY", 4, 3, 0, 3, 15.0),
])
sketch10.setExpression("Constraints[13]", "Params.sketch10_diameter")
sketch10.setExpression("Constraints[14]", "Params.sketch10_diameter2")
pad8 = body.newObject("PartDesign::Pad", "Pad007")
pad8.Profile = sketch10
pad8.setExpression("Length", "Params.pad8_length")

sketch11 = body.newObject("Sketcher::SketchObject", "Sketch010")
sketch11.AttachmentSupport = (doc.getObject("XZ_Plane"), [""])
sketch11.MapMode = "FlatFace"
sketch11.AttachmentOffset = App.Placement(App.Vector(0, 0, -13.1), App.Rotation())
sketch11.addGeometry([
    Part.LineSegment(App.Vector(-5, 9.22, 0), App.Vector(-5, 13.4, 0)),
    Part.LineSegment(App.Vector(-5, 13.4, 0), App.Vector(5, 13.4, 0)),
    Part.LineSegment(App.Vector(5, 13.4, 0), App.Vector(5, 9.22, 0)),
    Part.LineSegment(App.Vector(5, 9.22, 0), App.Vector(-5, 9.22, 0)),
], False)
sketch11.addConstraint([
    Sketcher.Constraint("Coincident", 0, 2, 1, 1),
    Sketcher.Constraint("Coincident", 1, 2, 2, 1),
    Sketcher.Constraint("Coincident", 2, 2, 3, 1),
    Sketcher.Constraint("Coincident", 3, 2, 0, 1),
    Sketcher.Constraint("Vertical", 0),
    Sketcher.Constraint("Horizontal", 1),
    Sketcher.Constraint("Vertical", 2),
    Sketcher.Constraint("Horizontal", 3),
    Sketcher.Constraint("DistanceX", 1, 1, 1, 2, 10.0),
    Sketcher.Constraint("DistanceX", 0, 2, -1, 1, 5.0),
    Sketcher.Constraint("DistanceY", 0, 1, 0, 2, 4.18),
    Sketcher.Constraint("DistanceY", -1, 1, 0, 2, 13.4),
])
sketch11.setExpression("Constraints[8]", "Params.sketch11_width")
sketch11.setExpression("Constraints[10]", "Params.sketch11_height")
pocket3 = body.newObject("PartDesign::Pocket", "Pocket002")
pocket3.Profile = sketch11
pocket3.Type = "UpToFirst"
pocket3.Reversed = True

doc.recompute()
